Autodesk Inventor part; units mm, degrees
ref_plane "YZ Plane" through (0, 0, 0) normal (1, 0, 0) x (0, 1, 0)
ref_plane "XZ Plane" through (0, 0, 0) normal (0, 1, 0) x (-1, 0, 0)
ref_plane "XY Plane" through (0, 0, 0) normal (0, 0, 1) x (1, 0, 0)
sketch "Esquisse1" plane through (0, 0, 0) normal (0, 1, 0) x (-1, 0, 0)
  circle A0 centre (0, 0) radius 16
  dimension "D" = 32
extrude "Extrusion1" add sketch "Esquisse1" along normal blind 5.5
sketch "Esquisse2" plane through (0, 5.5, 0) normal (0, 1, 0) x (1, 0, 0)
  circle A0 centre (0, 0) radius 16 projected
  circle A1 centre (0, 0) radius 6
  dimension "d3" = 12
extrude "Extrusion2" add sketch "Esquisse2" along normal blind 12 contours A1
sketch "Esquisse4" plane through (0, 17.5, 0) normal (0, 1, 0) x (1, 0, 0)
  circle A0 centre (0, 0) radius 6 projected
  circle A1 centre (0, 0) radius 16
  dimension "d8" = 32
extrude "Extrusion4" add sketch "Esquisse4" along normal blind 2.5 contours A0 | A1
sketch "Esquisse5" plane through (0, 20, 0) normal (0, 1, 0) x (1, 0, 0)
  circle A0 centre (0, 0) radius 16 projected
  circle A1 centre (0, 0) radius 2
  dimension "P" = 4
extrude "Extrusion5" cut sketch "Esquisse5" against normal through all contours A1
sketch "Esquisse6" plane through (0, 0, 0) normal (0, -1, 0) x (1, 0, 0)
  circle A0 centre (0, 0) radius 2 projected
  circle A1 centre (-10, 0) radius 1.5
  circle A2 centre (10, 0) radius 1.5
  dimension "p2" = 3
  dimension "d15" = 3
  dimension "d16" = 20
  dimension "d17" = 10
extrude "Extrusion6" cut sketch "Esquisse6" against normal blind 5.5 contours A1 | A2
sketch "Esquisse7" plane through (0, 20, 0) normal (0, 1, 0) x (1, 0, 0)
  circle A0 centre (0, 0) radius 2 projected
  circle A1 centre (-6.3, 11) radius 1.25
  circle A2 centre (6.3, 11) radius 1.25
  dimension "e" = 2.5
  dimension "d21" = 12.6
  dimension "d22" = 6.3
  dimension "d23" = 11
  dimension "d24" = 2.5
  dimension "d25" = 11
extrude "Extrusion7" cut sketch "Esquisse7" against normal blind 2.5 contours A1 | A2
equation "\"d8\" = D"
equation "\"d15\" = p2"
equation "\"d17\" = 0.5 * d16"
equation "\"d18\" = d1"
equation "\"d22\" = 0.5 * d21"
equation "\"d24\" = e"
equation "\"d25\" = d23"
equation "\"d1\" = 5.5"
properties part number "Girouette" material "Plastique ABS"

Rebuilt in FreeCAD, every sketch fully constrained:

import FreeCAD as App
import Part
import Sketcher

doc = App.newDocument("Part")
params = doc.addObject("Spreadsheet::Sheet", "Params")
for row, (alias, value) in enumerate([
    ("sketch1_diameter", "32 mm"),
    ("pad1_length", "5.5 mm"),
    ("sketch2_diameter", "12 mm"),
    ("pad2_length", "12 mm"),
    ("sketch3_diameter", "32 mm"),
    ("pad3_length", "2.5 mm"),
    ("sketch4_diameter", "4 mm"),
    ("sketch5_diameter", "3 mm"),
    ("pocket2_length", "5.5 mm"),
    ("sketch6_diameter", "2.5 mm"),
    ("pocket3_length", "2.5 mm"),
], start=1):
    params.set(f"A{row}", alias)
    params.set(f"B{row}", "=" + value)
    params.setAlias(f"B{row}", alias)

body = doc.addObject("PartDesign::Body", "Body")

# Sketch on XZ plane
sketch1 = body.newObject("Sketcher::SketchObject", "Sketch")
sketch1.AttachmentSupport = (doc.getObject("XZ_Plane"), [""])
sketch1.MapMode = "FlatFace"
sketch1.addGeometry(Part.Circle(App.Vector(0, 0, 0), App.Vector(0, 0, 1), 16), False)
sketch1.addConstraint(Sketcher.Constraint("Coincident", 0, 3, -1, 1))
sketch1.addConstraint(Sketcher.Constraint("Diameter", 0, 32.0))
sketch1.setExpression("Constraints[1]", "Params.sketch1_diameter")
pad1 = body.newObject("PartDesign::Pad", "Pad")
pad1.Profile = sketch1
pad1.setExpression("Length", "Params.pad1_length")
pad1.Reversed = True

# Sketch on XZ plane
sketch2 = body.newObject("Sketcher::SketchObject", "Sketch001")
sketch2.AttachmentSupport = (doc.getObject("XZ_Plane"), [""])
sketch2.MapMode = "FlatFace"
sketch2.AttachmentOffset = App.Placement(App.Vector(0, 0, -5.5), App.Rotation())
sketch2.addGeometry(Part.Circle(App.Vector(0, 0, 0), App.Vector(0, 0, 1), 6), False)
sketch2.addConstraint(Sketcher.Constraint("Coincident", 0, 3, -1, 1))
sketch2.addConstraint(Sketcher.Constraint("Diameter", 0, 12.0))
sketch2.setExpression("Constraints[1]", "Params.sketch2_diameter")
pad2 = body.newObject("PartDesign::Pad", "Pad001")
pad2.Profile = sketch2
pad2.setExpression("Length", "Params.pad2_length")
pad2.Reversed = True

# Sketch on XZ plane
sketch3 = body.newObject("Sketcher::SketchObject", "Sketch002")
sketch3.AttachmentSupport = (doc.getObject("XZ_Plane"), [""])
sketch3.MapMode = "FlatFace"
sketch3.AttachmentOffset = App.Placement(App.Vector(0, 0, -17.5), App.Rotation())
sketch3.addGeometry(Part.Circle(App.Vector(0, 0, 0), App.Vector(0, 0, 1), 16), False)
sketch3.addConstraint(Sketcher.Constraint("Coincident", 0, 3, -1, 1))
sketch3.addConstraint(Sketcher.Constraint("Diameter", 0, 32.0))
sketch3.setExpression("Constraints[1]", "Params.sketch3_diameter")
pad3 = body.newObject("PartDesign::Pad", "Pad002")
pad3.Profile = sketch3
pad3.setExpression("Length", "Params.pad3_length")
pad3.Reversed = True

# Sketch on XZ plane
sketch4 = body.newObject("Sketcher::SketchObject", "Sketch003")
sketch4.AttachmentSupport = (doc.getObject("XZ_Plane"), [""])
sketch4.MapMode = "FlatFace"
sketch4.AttachmentOffset = App.Placement(App.Vector(0, 0, -20), App.Rotation())
sketch4.addGeometry(Part.Circle(App.Vector(0, 0, 0), App.Vector(0, 0, 1), 2), False)
sketch4.addConstraint(Sketcher.Constraint("Coincident", 0, 3, -1, 1))
sketch4.addConstraint(Sketcher.Constraint("Diameter", 0, 4.0))
sketch4.setExpression("Constraints[1]", "Params.sketch4_diameter")
pocket1 = body.newObject("PartDesign::Pocket", "Pocket")
pocket1.Profile = sketch4
pocket1.Type = "ThroughAll"
pocket1.Reversed = True

# Sketch on XZ plane
sketch5 = body.newObject("Sketcher::SketchObject", "Sketch004")
sketch5.AttachmentSupport = (doc.getObject("XZ_Plane"), [""])
sketch5.MapMode = "FlatFace"
sketch5.addGeometry(Part.Circle(App.Vector(-10, 0, 0), App.Vector(0, 0, 1), 1.5), False)
sketch5.addGeometry(Part.Circle(App.Vector(10, 0, 0), App.Vector(0, 0, 1), 1.5), False)
sketch5.addConstraint(Sketcher.Constraint("Equal", 0, 1))
sketch5.addConstraint(Sketcher.Constraint("Symmetric", 0, 3, 1, 3, -1, 1))
sketch5.addConstraint(Sketcher.Constraint("PointOnObject", 0, 3, -1))
sketch5.addConstraint(Sketcher.Constraint("Diameter", 0, 3.0))
sketch5.addConstraint(Sketcher.Constraint("DistanceX", 0, 3, -1, 1, 10.0))
sketch5.setExpression("Constraints[3]", "Params.sketch5_diameter")
pocket2 = body.newObject("PartDesign::Pocket", "Pocket001")
pocket2.Profile = sketch5
pocket2.setExpression("Length", "Params.pocket2_length")

# Sketch on XZ plane
sketch6 = body.newObject("Sketcher::SketchObject", "Sketch005")
sketch6.AttachmentSupport = (doc.getObject("XZ_Plane"), [""])
sketch6.MapMode = "FlatFace"
sketch6.AttachmentOffset = App.Placement(App.Vector(0, 0, -20), App.Rotation())
sketch6.addGeometry(Part.Circle(App.Vector(-6.3, -11, 0), App.Vector(0, 0, 1), 1.2), False)
sketch6.addGeometry(Part.Circle(App.Vector(6.3, -11, 0), App.Vector(0, 0, 1), 1.2), False)
sketch6.addConstraint(Sketcher.Constraint("Equal", 0, 1))
sketch6.addConstraint(Sketcher.Constraint("Symmetric", 0, 3, 1, 3, -2))
sketch6.addConstraint(Sketcher.Constraint("Diameter", 0, 2.5))
sketch6.addConstraint(Sketcher.Constraint("DistanceY", 0, 3, -1, 1, 11.0))
sketch6.addConstraint(Sketcher.Constraint("DistanceX", 0, 3, -1, 1, 6.3))
sketch6.setExpression("Constraints[2]", "Params.sketch6_diameter")
pocket3 = body.newObject("PartDesign::Pocket", "Pocket002")
pocket3.Profile = sketch6
pocket3.setExpression("Length", "Params.pocket3_length")
pocket3.Reversed = True

doc.recompute()
